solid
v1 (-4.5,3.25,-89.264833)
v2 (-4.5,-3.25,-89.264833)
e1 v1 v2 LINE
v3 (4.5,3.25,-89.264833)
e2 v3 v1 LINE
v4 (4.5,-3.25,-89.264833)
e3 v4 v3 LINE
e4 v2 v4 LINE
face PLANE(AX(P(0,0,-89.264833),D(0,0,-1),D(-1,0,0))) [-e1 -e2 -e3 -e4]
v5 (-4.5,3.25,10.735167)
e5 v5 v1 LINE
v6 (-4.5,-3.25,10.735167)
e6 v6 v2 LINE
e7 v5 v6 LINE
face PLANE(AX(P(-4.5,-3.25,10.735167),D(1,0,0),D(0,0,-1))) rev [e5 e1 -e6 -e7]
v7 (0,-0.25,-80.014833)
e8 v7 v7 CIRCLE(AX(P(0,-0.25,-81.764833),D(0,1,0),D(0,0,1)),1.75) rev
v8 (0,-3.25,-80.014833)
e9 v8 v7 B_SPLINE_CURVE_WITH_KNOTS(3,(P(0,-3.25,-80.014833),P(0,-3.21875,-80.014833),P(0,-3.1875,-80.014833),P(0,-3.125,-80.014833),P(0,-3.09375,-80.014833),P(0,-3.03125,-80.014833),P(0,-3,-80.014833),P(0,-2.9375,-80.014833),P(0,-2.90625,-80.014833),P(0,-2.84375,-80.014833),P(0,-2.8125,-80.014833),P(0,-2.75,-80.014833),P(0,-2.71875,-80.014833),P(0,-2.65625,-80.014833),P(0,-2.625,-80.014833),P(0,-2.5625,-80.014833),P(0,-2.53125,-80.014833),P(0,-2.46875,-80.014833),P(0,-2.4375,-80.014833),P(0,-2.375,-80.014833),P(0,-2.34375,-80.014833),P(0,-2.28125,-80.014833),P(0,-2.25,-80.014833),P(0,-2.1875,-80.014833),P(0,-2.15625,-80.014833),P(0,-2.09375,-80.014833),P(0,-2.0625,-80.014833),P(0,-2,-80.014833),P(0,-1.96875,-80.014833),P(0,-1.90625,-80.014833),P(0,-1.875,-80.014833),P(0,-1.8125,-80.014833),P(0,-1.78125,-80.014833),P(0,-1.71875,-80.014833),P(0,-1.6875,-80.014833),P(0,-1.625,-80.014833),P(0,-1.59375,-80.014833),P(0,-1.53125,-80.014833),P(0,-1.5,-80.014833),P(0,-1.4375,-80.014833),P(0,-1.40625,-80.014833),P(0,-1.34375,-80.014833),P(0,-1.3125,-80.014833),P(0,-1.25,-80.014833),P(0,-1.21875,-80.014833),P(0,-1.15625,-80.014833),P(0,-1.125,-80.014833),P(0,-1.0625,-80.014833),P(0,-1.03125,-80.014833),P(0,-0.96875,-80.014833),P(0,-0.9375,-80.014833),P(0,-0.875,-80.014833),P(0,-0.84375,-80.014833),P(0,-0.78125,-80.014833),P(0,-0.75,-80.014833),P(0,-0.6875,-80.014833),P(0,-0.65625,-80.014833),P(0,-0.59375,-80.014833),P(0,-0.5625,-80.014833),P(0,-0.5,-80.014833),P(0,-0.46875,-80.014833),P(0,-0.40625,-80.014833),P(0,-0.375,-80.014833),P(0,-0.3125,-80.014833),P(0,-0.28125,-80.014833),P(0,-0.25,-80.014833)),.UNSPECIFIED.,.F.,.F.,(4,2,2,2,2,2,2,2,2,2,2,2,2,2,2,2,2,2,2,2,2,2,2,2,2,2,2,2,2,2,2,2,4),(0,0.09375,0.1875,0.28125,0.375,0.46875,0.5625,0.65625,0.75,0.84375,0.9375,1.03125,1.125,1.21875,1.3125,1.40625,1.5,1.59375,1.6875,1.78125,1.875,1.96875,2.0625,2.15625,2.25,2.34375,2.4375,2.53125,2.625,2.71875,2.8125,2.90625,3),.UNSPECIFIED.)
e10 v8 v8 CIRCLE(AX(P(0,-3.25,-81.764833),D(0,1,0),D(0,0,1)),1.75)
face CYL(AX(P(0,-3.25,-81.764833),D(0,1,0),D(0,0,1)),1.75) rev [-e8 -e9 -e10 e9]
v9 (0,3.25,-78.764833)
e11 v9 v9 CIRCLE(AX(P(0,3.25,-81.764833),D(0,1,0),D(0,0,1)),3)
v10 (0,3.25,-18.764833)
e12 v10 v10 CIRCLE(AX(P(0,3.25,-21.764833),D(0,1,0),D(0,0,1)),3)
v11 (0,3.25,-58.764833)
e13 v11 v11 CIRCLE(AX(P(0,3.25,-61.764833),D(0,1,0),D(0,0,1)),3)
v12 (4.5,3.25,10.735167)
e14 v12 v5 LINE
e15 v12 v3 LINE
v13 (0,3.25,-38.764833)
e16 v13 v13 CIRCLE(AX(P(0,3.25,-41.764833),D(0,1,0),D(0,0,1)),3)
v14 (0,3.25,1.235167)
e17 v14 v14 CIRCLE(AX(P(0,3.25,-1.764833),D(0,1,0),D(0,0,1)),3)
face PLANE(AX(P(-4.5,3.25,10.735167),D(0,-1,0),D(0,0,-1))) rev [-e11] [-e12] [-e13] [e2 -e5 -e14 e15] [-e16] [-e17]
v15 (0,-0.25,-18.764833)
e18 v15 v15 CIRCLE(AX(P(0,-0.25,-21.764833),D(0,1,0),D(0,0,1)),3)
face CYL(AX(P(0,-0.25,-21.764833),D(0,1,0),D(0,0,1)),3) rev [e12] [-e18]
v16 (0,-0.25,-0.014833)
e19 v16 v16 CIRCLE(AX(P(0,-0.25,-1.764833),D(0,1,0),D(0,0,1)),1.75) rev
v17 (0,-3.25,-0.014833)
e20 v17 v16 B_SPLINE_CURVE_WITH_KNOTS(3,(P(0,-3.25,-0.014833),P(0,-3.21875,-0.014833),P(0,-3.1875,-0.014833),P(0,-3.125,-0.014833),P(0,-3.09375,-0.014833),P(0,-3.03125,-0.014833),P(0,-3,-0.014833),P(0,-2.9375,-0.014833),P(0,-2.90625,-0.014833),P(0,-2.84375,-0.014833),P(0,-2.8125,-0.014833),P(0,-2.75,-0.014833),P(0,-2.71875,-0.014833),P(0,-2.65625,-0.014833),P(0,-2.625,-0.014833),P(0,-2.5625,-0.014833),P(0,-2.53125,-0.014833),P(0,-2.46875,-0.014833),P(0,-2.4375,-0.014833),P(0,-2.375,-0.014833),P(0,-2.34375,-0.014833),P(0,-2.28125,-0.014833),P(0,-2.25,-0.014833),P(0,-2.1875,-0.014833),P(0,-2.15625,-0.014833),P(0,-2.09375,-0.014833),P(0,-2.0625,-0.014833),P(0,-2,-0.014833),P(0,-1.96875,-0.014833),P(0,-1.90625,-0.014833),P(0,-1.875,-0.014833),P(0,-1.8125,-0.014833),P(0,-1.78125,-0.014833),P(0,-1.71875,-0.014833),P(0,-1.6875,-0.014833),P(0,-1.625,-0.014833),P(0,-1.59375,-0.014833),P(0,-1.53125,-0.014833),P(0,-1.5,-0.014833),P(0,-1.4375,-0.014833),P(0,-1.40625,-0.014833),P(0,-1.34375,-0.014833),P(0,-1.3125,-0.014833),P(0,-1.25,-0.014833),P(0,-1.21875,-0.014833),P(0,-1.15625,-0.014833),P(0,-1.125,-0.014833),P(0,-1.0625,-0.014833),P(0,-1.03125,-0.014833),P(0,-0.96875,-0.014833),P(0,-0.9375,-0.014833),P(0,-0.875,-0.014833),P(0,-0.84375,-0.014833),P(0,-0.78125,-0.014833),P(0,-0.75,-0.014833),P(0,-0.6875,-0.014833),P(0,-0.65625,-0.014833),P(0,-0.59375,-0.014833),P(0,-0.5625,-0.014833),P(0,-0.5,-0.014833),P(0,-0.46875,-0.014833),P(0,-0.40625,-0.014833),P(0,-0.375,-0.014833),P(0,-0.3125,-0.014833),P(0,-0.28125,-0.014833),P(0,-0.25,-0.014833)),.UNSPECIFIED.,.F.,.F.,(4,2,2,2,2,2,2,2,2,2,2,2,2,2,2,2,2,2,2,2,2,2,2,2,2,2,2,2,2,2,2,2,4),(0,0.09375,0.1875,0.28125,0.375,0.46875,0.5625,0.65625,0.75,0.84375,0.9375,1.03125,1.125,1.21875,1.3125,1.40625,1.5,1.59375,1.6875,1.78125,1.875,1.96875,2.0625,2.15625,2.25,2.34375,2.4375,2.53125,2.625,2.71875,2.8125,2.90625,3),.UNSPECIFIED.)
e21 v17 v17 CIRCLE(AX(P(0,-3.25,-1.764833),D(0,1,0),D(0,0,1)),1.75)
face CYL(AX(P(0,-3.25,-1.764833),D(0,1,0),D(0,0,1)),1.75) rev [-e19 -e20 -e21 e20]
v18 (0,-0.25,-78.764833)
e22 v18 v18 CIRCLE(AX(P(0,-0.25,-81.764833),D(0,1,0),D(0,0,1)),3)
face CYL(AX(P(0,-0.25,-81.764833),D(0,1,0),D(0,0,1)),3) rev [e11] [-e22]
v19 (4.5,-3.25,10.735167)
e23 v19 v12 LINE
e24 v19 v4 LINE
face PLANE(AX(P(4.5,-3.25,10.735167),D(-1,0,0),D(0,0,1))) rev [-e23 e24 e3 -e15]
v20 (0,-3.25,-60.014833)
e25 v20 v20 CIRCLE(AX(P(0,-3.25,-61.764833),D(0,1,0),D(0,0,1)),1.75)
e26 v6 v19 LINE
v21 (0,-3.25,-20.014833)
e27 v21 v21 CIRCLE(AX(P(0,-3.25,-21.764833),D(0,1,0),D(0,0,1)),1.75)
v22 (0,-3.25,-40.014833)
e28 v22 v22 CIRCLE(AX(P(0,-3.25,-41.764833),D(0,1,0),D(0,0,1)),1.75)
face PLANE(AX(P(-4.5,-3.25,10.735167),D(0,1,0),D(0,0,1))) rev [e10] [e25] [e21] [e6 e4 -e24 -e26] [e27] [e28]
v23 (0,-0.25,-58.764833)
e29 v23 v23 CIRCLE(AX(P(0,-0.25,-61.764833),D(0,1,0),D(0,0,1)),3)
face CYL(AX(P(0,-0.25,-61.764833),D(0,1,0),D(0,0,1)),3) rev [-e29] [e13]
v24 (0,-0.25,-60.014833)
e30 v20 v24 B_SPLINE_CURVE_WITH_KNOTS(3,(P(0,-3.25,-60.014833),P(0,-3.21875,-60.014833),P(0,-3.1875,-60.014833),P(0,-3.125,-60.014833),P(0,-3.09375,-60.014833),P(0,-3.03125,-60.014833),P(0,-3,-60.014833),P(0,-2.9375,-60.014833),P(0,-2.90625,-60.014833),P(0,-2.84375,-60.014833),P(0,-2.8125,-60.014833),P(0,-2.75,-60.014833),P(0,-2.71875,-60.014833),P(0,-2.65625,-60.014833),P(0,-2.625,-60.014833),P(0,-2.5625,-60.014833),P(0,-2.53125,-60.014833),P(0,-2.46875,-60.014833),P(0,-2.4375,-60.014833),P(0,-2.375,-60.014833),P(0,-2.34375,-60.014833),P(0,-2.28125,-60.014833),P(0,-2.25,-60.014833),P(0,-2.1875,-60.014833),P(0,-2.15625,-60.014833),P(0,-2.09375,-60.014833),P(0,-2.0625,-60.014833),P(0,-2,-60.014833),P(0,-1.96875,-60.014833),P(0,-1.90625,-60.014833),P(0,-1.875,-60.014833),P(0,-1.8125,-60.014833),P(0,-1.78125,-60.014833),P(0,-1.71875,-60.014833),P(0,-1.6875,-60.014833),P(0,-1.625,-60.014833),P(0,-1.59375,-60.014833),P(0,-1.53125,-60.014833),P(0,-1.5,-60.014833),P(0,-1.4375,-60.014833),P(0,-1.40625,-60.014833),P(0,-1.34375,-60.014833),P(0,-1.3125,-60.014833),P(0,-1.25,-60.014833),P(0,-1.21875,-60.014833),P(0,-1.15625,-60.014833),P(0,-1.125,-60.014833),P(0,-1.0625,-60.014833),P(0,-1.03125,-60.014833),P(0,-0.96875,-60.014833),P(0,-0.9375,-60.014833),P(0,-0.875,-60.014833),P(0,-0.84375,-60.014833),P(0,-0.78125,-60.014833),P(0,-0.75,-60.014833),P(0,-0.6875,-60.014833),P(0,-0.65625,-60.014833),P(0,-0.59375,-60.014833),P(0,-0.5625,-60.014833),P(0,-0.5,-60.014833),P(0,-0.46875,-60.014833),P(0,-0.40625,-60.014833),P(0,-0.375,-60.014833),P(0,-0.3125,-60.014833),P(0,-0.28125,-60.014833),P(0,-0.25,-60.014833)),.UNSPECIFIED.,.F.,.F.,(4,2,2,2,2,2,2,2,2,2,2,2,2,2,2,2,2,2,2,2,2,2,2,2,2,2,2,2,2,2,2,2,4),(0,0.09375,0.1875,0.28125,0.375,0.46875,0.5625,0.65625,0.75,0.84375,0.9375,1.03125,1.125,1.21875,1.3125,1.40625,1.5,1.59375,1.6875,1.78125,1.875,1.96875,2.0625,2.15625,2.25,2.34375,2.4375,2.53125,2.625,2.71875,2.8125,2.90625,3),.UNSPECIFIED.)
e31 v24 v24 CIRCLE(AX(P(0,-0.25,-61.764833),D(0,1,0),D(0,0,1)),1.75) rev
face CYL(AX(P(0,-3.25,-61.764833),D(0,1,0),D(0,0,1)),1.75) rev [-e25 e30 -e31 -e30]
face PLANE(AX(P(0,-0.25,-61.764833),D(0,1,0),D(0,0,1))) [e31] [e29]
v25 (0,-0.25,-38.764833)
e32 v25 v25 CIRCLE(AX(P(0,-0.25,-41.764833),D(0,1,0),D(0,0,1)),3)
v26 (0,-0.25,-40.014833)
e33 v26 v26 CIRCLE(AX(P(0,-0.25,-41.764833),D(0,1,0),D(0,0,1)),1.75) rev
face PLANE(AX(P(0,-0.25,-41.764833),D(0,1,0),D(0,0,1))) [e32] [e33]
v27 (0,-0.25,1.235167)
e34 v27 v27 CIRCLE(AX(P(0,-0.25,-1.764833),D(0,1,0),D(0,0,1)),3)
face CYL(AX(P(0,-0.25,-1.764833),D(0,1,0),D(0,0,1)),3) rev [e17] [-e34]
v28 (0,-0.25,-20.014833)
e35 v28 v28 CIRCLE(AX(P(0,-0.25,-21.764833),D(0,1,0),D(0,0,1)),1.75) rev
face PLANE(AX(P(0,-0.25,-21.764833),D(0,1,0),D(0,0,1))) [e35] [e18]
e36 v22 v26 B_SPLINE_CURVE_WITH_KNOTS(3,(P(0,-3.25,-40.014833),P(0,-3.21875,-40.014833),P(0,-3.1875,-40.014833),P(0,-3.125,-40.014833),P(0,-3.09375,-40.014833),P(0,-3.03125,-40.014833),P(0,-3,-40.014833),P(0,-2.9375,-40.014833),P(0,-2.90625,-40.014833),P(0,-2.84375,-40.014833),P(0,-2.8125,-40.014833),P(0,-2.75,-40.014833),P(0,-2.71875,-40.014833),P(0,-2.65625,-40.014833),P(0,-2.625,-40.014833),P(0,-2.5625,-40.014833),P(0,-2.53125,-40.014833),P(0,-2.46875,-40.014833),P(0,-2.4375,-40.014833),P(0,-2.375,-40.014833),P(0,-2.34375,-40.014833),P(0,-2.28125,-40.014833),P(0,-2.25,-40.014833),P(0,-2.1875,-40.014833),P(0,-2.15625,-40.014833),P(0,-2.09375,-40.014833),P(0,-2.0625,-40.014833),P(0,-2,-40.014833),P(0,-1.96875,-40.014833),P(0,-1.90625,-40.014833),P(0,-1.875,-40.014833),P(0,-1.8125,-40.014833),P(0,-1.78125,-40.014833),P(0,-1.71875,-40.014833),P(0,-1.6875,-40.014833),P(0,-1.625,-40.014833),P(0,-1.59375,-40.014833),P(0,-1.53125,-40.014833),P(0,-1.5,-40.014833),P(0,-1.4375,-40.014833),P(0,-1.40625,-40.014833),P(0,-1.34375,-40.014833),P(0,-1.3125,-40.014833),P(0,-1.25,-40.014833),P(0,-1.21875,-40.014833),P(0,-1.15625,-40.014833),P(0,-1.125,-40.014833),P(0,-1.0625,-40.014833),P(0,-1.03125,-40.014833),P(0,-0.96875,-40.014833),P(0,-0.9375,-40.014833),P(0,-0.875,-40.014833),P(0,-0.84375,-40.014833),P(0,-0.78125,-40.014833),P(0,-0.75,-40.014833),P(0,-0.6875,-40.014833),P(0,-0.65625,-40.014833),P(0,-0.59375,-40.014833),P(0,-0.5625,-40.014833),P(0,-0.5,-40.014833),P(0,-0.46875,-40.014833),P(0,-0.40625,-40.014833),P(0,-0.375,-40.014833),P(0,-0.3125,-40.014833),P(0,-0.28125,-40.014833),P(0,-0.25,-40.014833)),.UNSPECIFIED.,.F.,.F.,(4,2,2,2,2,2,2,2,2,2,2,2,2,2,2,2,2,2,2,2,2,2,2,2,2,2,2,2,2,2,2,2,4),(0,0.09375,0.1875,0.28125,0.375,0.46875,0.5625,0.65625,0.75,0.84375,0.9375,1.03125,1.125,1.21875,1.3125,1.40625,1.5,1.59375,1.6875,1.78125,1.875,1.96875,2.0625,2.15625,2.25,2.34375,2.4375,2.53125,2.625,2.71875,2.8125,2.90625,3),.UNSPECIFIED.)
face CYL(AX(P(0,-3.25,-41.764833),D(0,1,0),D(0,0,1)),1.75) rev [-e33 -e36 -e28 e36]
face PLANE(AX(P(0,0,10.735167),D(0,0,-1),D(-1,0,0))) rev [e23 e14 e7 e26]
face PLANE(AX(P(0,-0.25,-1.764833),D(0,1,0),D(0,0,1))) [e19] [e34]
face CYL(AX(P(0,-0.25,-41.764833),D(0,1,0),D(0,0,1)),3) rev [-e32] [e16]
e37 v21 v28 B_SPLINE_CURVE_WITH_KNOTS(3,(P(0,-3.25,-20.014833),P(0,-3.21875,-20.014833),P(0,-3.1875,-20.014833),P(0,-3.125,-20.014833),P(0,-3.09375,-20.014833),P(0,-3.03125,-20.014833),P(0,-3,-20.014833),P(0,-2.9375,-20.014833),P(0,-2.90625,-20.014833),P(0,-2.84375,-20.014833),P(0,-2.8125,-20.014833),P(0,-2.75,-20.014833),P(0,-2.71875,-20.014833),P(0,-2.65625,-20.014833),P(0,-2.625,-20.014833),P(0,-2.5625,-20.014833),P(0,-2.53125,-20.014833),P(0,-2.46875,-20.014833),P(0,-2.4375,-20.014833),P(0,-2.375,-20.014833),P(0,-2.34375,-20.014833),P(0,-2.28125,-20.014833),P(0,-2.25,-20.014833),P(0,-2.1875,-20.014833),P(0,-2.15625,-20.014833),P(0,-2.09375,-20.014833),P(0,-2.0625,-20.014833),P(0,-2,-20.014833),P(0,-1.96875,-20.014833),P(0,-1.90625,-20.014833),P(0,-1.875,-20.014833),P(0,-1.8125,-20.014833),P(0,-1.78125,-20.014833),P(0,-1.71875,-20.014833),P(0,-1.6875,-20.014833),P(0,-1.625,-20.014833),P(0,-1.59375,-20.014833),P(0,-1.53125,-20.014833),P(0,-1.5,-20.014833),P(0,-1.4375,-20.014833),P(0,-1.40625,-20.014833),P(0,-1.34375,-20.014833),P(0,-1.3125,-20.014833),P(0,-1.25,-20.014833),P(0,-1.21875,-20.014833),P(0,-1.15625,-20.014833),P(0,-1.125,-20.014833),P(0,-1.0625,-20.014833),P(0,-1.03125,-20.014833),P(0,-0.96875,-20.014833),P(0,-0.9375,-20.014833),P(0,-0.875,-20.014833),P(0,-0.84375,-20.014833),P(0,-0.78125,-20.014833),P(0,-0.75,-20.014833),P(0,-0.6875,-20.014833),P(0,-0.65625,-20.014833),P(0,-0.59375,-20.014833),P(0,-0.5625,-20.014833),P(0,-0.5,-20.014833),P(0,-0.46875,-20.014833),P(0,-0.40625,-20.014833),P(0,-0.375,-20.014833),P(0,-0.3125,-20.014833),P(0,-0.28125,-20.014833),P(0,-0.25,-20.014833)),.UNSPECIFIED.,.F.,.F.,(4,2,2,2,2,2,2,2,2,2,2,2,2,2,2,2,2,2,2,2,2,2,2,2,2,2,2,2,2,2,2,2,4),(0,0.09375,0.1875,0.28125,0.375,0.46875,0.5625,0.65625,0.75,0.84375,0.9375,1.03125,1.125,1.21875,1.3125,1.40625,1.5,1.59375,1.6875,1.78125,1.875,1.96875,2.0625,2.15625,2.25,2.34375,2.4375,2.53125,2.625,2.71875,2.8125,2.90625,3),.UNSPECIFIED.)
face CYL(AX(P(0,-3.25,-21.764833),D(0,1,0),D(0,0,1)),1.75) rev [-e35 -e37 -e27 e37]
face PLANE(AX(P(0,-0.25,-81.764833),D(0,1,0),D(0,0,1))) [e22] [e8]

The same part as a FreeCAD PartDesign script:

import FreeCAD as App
import Part
import Sketcher

V = App.Vector

doc = App.newDocument("Part")
params = doc.addObject("Spreadsheet::Sheet", "Params")
for row, (alias, value) in enumerate([
    ("sketch1_width", "9 mm"),
    ("sketch1_height", "6.5 mm"),
    ("pad1_length", "100 mm"),
    ("sketch2_diameter", "3.5 mm"),
    ("sketch3_diameter", "6 mm"),
    ("pocket2_length", "3.5 mm"),
], start=1):
    params.set(f"A{row}", alias)
    params.set(f"B{row}", "=" + value)
    params.setAlias(f"B{row}", alias)

body = doc.addObject("PartDesign::Body", "Body")

sketch1 = body.newObject("Sketcher::SketchObject", "Sketch")
sketch1.AttachmentSupport = (doc.getObject("XY_Plane"), [""])
sketch1.MapMode = "FlatFace"
sketch1.AttachmentOffset = App.Placement(V(0, 0, -89.264833), App.Rotation())
sketch1.addGeometry([
    Part.LineSegment(V(-4.5, 3.25, 0), V(-4.5, -3.25, 0)),
    Part.LineSegment(V(-4.5, -3.25, 0), V(4.5, -3.25, 0)),
    Part.LineSegment(V(4.5, -3.25, 0), V(4.5, 3.25, 0)),
    Part.LineSegment(V(4.5, 3.25, 0), V(-4.5, 3.25, 0)),
], False)
sketch1.addConstraint([
    Sketcher.Constraint("Coincident", 0, 2, 1, 1),
    Sketcher.Constraint("Coincident", 1, 2, 2, 1),
    Sketcher.Constraint("Coincident", 2, 2, 3, 1),
    Sketcher.Constraint("Coincident", 3, 2, 0, 1),
    Sketcher.Constraint("Vertical", 0),
    Sketcher.Constraint("Horizontal", 1),
    Sketcher.Constraint("Vertical", 2),
    Sketcher.Constraint("Horizontal", 3),
    Sketcher.Constraint("Symmetric", 0, 2, 2, 2, -1, 1),
    Sketcher.Constraint("DistanceX", 1, 1, 1, 2, 9.0),
    Sketcher.Constraint("DistanceY", 0, 2, 0, 1, 6.5),
])
sketch1.setExpression("Constraints[9]", "Params.sketch1_width")
sketch1.setExpression("Constraints[10]", "Params.sketch1_height")
pad1 = body.newObject("PartDesign::Pad", "Pad")
pad1.Profile = sketch1
pad1.setExpression("Length", "Params.pad1_length")

sketch2 = body.newObject("Sketcher::SketchObject", "Sketch001")
sketch2.AttachmentSupport = (doc.getObject("XZ_Plane"), [""])
sketch2.MapMode = "FlatFace"
sketch2.AttachmentOffset = App.Placement(V(0, 0, -3.25), App.Rotation())
sketch2.addGeometry([
    Part.Circle(V(0, -81.764833, 0), V(0, 0, 1), 1.75),
    Part.Circle(V(0, -61.764833, 0), V(0, 0, 1), 1.75),
    Part.Circle(V(0, -41.764833, 0), V(0, 0, 1), 1.75),
    Part.Circle(V(0, -21.764833, 0), V(0, 0, 1), 1.75),
    Part.Circle(V(0, -1.764833, 0), V(0, 0, 1), 1.75),
    Part.Circle(V(0, 18.235167, 0), V(0, 0, 1), 1.75),
    Part.Circle(V(0, 38.235167, 0), V(0, 0, 1), 1.75),
    Part.Circle(V(0, 58.235167, 0), V(0, 0, 1), 1.75),
    Part.Circle(V(0, 78.235167, 0), V(0, 0, 1), 1.75),
    Part.Circle(V(0, 98.235167, 0), V(0, 0, 1), 1.75),
    Part.Circle(V(0, 118.235167, 0), V(0, 0, 1), 1.75),
    Part.Circle(V(0, 138.235167, 0), V(0, 0, 1), 1.75),
    Part.Circle(V(0, 158.235167, 0), V(0, 0, 1), 1.75),
    Part.Circle(V(0, 178.235167, 0), V(0, 0, 1), 1.75),
    Part.Circle(V(0, 198.235167, 0), V(0, 0, 1), 1.75),
    Part.Circle(V(0, 218.235167, 0), V(0, 0, 1), 1.75),
    Part.Circle(V(0, 238.235167, 0), V(0, 0, 1), 1.75),
    Part.Circle(V(0, 258.235167, 0), V(0, 0, 1), 1.75),
    Part.Circle(V(0, 278.235167, 0), V(0, 0, 1), 1.75),
    Part.Circle(V(0, 298.235167, 0), V(0, 0, 1), 1.75),
    Part.Circle(V(0, 318.235167, 0), V(0, 0, 1), 1.75),
    Part.Circle(V(0, 338.235167, 0), V(0, 0, 1), 1.75),
    Part.Circle(V(0, 358.235167, 0), V(0, 0, 1), 1.75),
    Part.Circle(V(0, 378.235167, 0), V(0, 0, 1), 1.75),
    Part.Circle(V(0, 398.235167, 0), V(0, 0, 1), 1.75),
    Part.Circle(V(0, 418.235167, 0), V(0, 0, 1), 1.75),
    Part.Circle(V(0, 438.235167, 0), V(0, 0, 1), 1.75),
    Part.Circle(V(0, 458.235167, 0), V(0, 0, 1), 1.75),
    Part.Circle(V(0, 478.235167, 0), V(0, 0, 1), 1.75),
    Part.Circle(V(0, 498.235167, 0), V(0, 0, 1), 1.75),
    Part.Circle(V(0, 518.235167, 0), V(0, 0, 1), 1.75),
    Part.Circle(V(0, 538.235167, 0), V(0, 0, 1), 1.75),
    Part.Circle(V(0, 558.235167, 0), V(0, 0, 1), 1.75),
    Part.Circle(V(0, 578.235167, 0), V(0, 0, 1), 1.75),
    Part.Circle(V(0, 598.235167, 0), V(0, 0, 1), 1.75),
    Part.Circle(V(0, 618.235167, 0), V(0, 0, 1), 1.75),
    Part.Circle(V(0, 638.235167, 0), V(0, 0, 1), 1.75),
    Part.Circle(V(0, 658.235167, 0), V(0, 0, 1), 1.75),
    Part.Circle(V(0, 678.235167, 0), V(0, 0, 1), 1.75),
    Part.Circle(V(0, 698.235167, 0), V(0, 0, 1), 1.75),
    Part.Circle(V(0, 718.235167, 0), V(0, 0, 1), 1.75),
    Part.Circle(V(0, 738.235167, 0), V(0, 0, 1), 1.75),
    Part.Circle(V(0, 758.235167, 0), V(0, 0, 1), 1.75),
    Part.Circle(V(0, 778.235167, 0), V(0, 0, 1), 1.75),
    Part.Circle(V(0, 798.235167, 0), V(0, 0, 1), 1.75),
    Part.Circle(V(0, 818.235167, 0), V(0, 0, 1), 1.75),
    Part.Circle(V(0, 838.235167, 0), V(0, 0, 1), 1.75),
    Part.Circle(V(0, 858.235167, 0), V(0, 0, 1), 1.75),
    Part.Circle(V(0, 878.235167, 0), V(0, 0, 1), 1.75),
    Part.Circle(V(0, 898.235167, 0), V(0, 0, 1), 1.75),
    Part.Circle(V(0, 918.235167, 0), V(0, 0, 1), 1.75),
    Part.Circle(V(0, 938.235167, 0), V(0, 0, 1), 1.75),
    Part.Circle(V(0, 958.235167, 0), V(0, 0, 1), 1.75),
    Part.Circle(V(0, 978.235167, 0), V(0, 0, 1), 1.75),
    Part.Circle(V(0, 998.235167, 0), V(0, 0, 1), 1.75),
    Part.Circle(V(0, 1018.235167, 0), V(0, 0, 1), 1.75),
    Part.Circle(V(0, 1038.235167, 0), V(0, 0, 1), 1.75),
    Part.Circle(V(0, 1058.235167, 0), V(0, 0, 1), 1.75),
    Part.Circle(V(0, 1078.235167, 0), V(0, 0, 1), 1.75),
    Part.Circle(V(0, 1098.235167, 0), V(0, 0, 1), 1.75),
], False)
sketch2.addConstraint([
    Sketcher.Constraint("Equal", 0, 1),
    Sketcher.Constraint("Equal", 1, 2),
    Sketcher.Constraint("Equal", 2, 3),
    Sketcher.Constraint("Equal", 3, 4),
    Sketcher.Constraint("Equal", 4, 5),
    Sketcher.Constraint("Equal", 5, 6),
    Sketcher.Constraint("Equal", 6, 7),
    Sketcher.Constraint("Equal", 7, 8),
    Sketcher.Constraint("Equal", 8, 9),
    Sketcher.Constraint("Equal", 9, 10),
    Sketcher.Constraint("Equal", 10, 11),
    Sketcher.Constraint("Equal", 11, 12),
    Sketcher.Constraint("Equal", 12, 13),
    Sketcher.Constraint("Equal", 13, 14),
    Sketcher.Constraint("Equal", 14, 15),
    Sketcher.Constraint("Equal", 15, 16),
    Sketcher.Constraint("Equal", 16, 17),
    Sketcher.Constraint("Equal", 17, 18),
    Sketcher.Constraint("Equal", 18, 19),
    Sketcher.Constraint("Equal", 19, 20),
    Sketcher.Constraint("Equal", 20, 21),
    Sketcher.Constraint("Equal", 21, 22),
    Sketcher.Constraint("Equal", 22, 23),
    Sketcher.Constraint("Equal", 23, 24),
    Sketcher.Constraint("Equal", 24, 25),
    Sketcher.Constraint("Equal", 25, 26),
    Sketcher.Constraint("Equal", 26, 27),
    Sketcher.Constraint("Equal", 27, 28),
    Sketcher.Constraint("Equal", 28, 29),
    Sketcher.Constraint("Equal", 29, 30),
    Sketcher.Constraint("Equal", 30, 31),
    Sketcher.Constraint("Equal", 31, 32),
    Sketcher.Constraint("Equal", 32, 33),
    Sketcher.Constraint("Equal", 33, 34),
    Sketcher.Constraint("Equal", 34, 35),
    Sketcher.Constraint("Equal", 35, 36),
    Sketcher.Constraint("Equal", 36, 37),
    Sketcher.Constraint("Equal", 37, 38),
    Sketcher.Constraint("Equal", 38, 39),
    Sketcher.Constraint("Equal", 39, 40),
    Sketcher.Constraint("Equal", 40, 41),
    Sketcher.Constraint("Equal", 41, 42),
    Sketcher.Constraint("Equal", 42, 43),
    Sketcher.Constraint("Equal", 43, 44),
    Sketcher.Constraint("Equal", 44, 45),
    Sketcher.Constraint("Equal", 45, 46),
    Sketcher.Constraint("Equal", 46, 47),
    Sketcher.Constraint("Equal", 47, 48),
    Sketcher.Constraint("Equal", 48, 49),
    Sketcher.Constraint("Equal", 49, 50),
    Sketcher.Constraint("Equal", 50, 51),
    Sketcher.Constraint("Equal", 51, 52),
    Sketcher.Constraint("Equal", 52, 53),
    Sketcher.Constraint("Equal", 53, 54),
    Sketcher.Constraint("Equal", 54, 55),
    Sketcher.Constraint("Equal", 55, 56),
    Sketcher.Constraint("Equal", 56, 57),
    Sketcher.Constraint("Equal", 57, 58),
    Sketcher.Constraint("Equal", 58, 59),
    Sketcher.Constraint("PointOnObject", 0, 3, -2),
    Sketcher.Constraint("PointOnObject", 1, 3, -2),
    Sketcher.Constraint("PointOnObject", 2, 3, -2),
    Sketcher.Constraint("PointOnObject", 3, 3, -2),
    Sketcher.Constraint("PointOnObject", 4, 3, -2),
    Sketcher.Constraint("PointOnObject", 5, 3, -2),
    Sketcher.Constraint("PointOnObject", 6, 3, -2),
    Sketcher.Constraint("PointOnObject", 7, 3, -2),
    Sketcher.Constraint("PointOnObject", 8, 3, -2),
    Sketcher.Constraint("PointOnObject", 9, 3, -2),
    Sketcher.Constraint("PointOnObject", 10, 3, -2),
    Sketcher.Constraint("PointOnObject", 11, 3, -2),
    Sketcher.Constraint("PointOnObject", 12, 3, -2),
    Sketcher.Constraint("PointOnObject", 13, 3, -2),
    Sketcher.Constraint("PointOnObject", 14, 3, -2),
    Sketcher.Constraint("PointOnObject", 15, 3, -2),
    Sketcher.Constraint("PointOnObject", 16, 3, -2),
    Sketcher.Constraint("PointOnObject", 17, 3, -2),
    Sketcher.Constraint("PointOnObject", 18, 3, -2),
    Sketcher.Constraint("PointOnObject", 19, 3, -2),
    Sketcher.Constraint("PointOnObject", 20, 3, -2),
    Sketcher.Constraint("PointOnObject", 21, 3, -2),
    Sketcher.Constraint("PointOnObject", 22, 3, -2),
    Sketcher.Constraint("PointOnObject", 23, 3, -2),
    Sketcher.Constraint("PointOnObject", 24, 3, -2),
    Sketcher.Constraint("PointOnObject", 25, 3, -2),
    Sketcher.Constraint("PointOnObject", 26, 3, -2),
    Sketcher.Constraint("PointOnObject", 27, 3, -2),
    Sketcher.Constraint("PointOnObject", 28, 3, -2),
    Sketcher.Constraint("PointOnObject", 29, 3, -2),
    Sketcher.Constraint("PointOnObject", 30, 3, -2),
    Sketcher.Constraint("PointOnObject", 31, 3, -2),
    Sketcher.Constraint("PointOnObject", 32, 3, -2),
    Sketcher.Constraint("PointOnObject", 33, 3, -2),
    Sketcher.Constraint("PointOnObject", 34, 3, -2),
    Sketcher.Constraint("PointOnObject", 35, 3, -2),
    Sketcher.Constraint("PointOnObject", 36, 3, -2),
    Sketcher.Constraint("PointOnObject", 37, 3, -2),
    Sketcher.Constraint("PointOnObject", 38, 3, -2),
    Sketcher.Constraint("PointOnObject", 39, 3, -2),
    Sketcher.Constraint("PointOnObject", 40, 3, -2),
    Sketcher.Constraint("PointOnObject", 41, 3, -2),
    Sketcher.Constraint("PointOnObject", 42, 3, -2),
    Sketcher.Constraint("PointOnObject", 43, 3, -2),
    Sketcher.Constraint("PointOnObject", 44, 3, -2),
    Sketcher.Constraint("PointOnObject", 45, 3, -2),
    Sketcher.Constraint("PointOnObject", 46, 3, -2),
    Sketcher.Constraint("PointOnObject", 47, 3, -2),
    Sketcher.Constraint("PointOnObject", 48, 3, -2),
    Sketcher.Constraint("PointOnObject", 49, 3, -2),
    Sketcher.Constraint("PointOnObject", 50, 3, -2),
    Sketcher.Constraint("PointOnObject", 51, 3, -2),
    Sketcher.Constraint("PointOnObject", 52, 3, -2),
    Sketcher.Constraint("PointOnObject", 53, 3, -2),
    Sketcher.Constraint("PointOnObject", 54, 3, -2),
    Sketcher.Constraint("PointOnObject", 55, 3, -2),
    Sketcher.Constraint("PointOnObject", 56, 3, -2),
    Sketcher.Constraint("PointOnObject", 57, 3, -2),
    Sketcher.Constraint("PointOnObject", 58, 3, -2),
    Sketcher.Constraint("PointOnObject", 59, 3, -2),
    Sketcher.Constraint("Diameter", 0, 3.5),
    Sketcher.Constraint("DistanceY", 0, 3, 1, 3, 20.0),
    Sketcher.Constraint("DistanceY", 1, 3, 2, 3, 20.0),
    Sketcher.Constraint("DistanceY", 2, 3, 3, 3, 20.0),
    Sketcher.Constraint("DistanceY", 3, 3, 4, 3, 20.0),
    Sketcher.Constraint("DistanceY", 4, 3, 5, 3, 20.0),
    Sketcher.Constraint("DistanceY", 5, 3, 6, 3, 20.0),
    Sketcher.Constraint("DistanceY", 6, 3, 7, 3, 20.0),
    Sketcher.Constraint("DistanceY", 7, 3, 8, 3, 20.0),
    Sketcher.Constraint("DistanceY", 8, 3, 9, 3, 20.0),
    Sketcher.Constraint("DistanceY", 9, 3, 10, 3, 20.0),
    Sketcher.Constraint("DistanceY", 10, 3, 11, 3, 20.0),
    Sketcher.Constraint("DistanceY", 11, 3, 12, 3, 20.0),
    Sketcher.Constraint("DistanceY", 12, 3, 13, 3, 20.0),
    Sketcher.Constraint("DistanceY", 13, 3, 14, 3, 20.0),
    Sketcher.Constraint("DistanceY", 14, 3, 15, 3, 20.0),
    Sketcher.Constraint("DistanceY", 15, 3, 16, 3, 20.0),
    Sketcher.Constraint("DistanceY", 16, 3, 17, 3, 20.0),
    Sketcher.Constraint("DistanceY", 17, 3, 18, 3, 20.0),
    Sketcher.Constraint("DistanceY", 18, 3, 19, 3, 20.0),
    Sketcher.Constraint("DistanceY", 19, 3, 20, 3, 20.0),
    Sketcher.Constraint("DistanceY", 20, 3, 21, 3, 20.0),
    Sketcher.Constraint("DistanceY", 21, 3, 22, 3, 20.0),
    Sketcher.Constraint("DistanceY", 22, 3, 23, 3, 20.0),
    Sketcher.Constraint("DistanceY", 23, 3, 24, 3, 20.0),
    Sketcher.Constraint("DistanceY", 24, 3, 25, 3, 20.0),
    Sketcher.Constraint("DistanceY", 25, 3, 26, 3, 20.0),
    Sketcher.Constraint("DistanceY", 26, 3, 27, 3, 20.0),
    Sketcher.Constraint("DistanceY", 27, 3, 28, 3, 20.0),
    Sketcher.Constraint("DistanceY", 28, 3, 29, 3, 20.0),
    Sketcher.Constraint("DistanceY", 29, 3, 30, 3, 20.0),
    Sketcher.Constraint("DistanceY", 30, 3, 31, 3, 20.0),
    Sketcher.Constraint("DistanceY", 31, 3, 32, 3, 20.0),
    Sketcher.Constraint("DistanceY", 32, 3, 33, 3, 20.0),
    Sketcher.Constraint("DistanceY", 33, 3, 34, 3, 20.0),
    Sketcher.Constraint("DistanceY", 34, 3, 35, 3, 20.0),
    Sketcher.Constraint("DistanceY", 35, 3, 36, 3, 20.0),
    Sketcher.Constraint("DistanceY", 36, 3, 37, 3, 20.0),
    Sketcher.Constraint("DistanceY", 37, 3, 38, 3, 20.0),
    Sketcher.Constraint("DistanceY", 38, 3, 39, 3, 20.0),
    Sketcher.Constraint("DistanceY", 39, 3, 40, 3, 20.0),
    Sketcher.Constraint("DistanceY", 40, 3, 41, 3, 20.0),
    Sketcher.Constraint("DistanceY", 41, 3, 42, 3, 20.0),
    Sketcher.Constraint("DistanceY", 42, 3, 43, 3, 20.0),
    Sketcher.Constraint("DistanceY", 43, 3, 44, 3, 20.0),
    Sketcher.Constraint("DistanceY", 44, 3, 45, 3, 20.0),
    Sketcher.Constraint("DistanceY", 45, 3, 46, 3, 20.0),
    Sketcher.Constraint("DistanceY", 46, 3, 47, 3, 20.0),
    Sketcher.Constraint("DistanceY", 47, 3, 48, 3, 20.0),
    Sketcher.Constraint("DistanceY", 48, 3, 49, 3, 20.0),
    Sketcher.Constraint("DistanceY", 49, 3, 50, 3, 20.0),
    Sketcher.Constraint("DistanceY", 50, 3, 51, 3, 20.0),
    Sketcher.Constraint("DistanceY", 51, 3, 52, 3, 20.0),
    Sketcher.Constraint("DistanceY", 52, 3, 53, 3, 20.0),
    Sketcher.Constraint("DistanceY", 53, 3, 54, 3, 20.0),
    Sketcher.Constraint("DistanceY", 54, 3, 55, 3, 20.0),
    Sketcher.Constraint("DistanceY", 55, 3, 56, 3, 20.0),
    Sketcher.Constraint("DistanceY", 56, 3, 57, 3, 20.0),
    Sketcher.Constraint("DistanceY", 57, 3, 58, 3, 20.0),
    Sketcher.Constraint("DistanceY", 58, 3, 59, 3, 20.0),
    Sketcher.Constraint("DistanceY", 0, 3, -1, 1, 81.764833),
])
sketch2.setExpression("Constraints[119]", "Params.sketch2_diameter")
pocket1 = body.newObject("PartDesign::Pocket", "Pocket")
pocket1.Profile = sketch2
pocket1.Type = "ThroughAll"
pocket1.Reversed = True

sketch3 = body.newObject("Sketcher::SketchObject", "Sketch002")
sketch3.AttachmentSupport = (doc.getObject("XZ_Plane"), [""])
sketch3.MapMode = "FlatFace"
sketch3.AttachmentOffset = App.Placement(V(0, 0, -3.25), App.Rotation())
sketch3.addGeometry([
    Part.Circle(V(0, -81.764833, 0), V(0, 0, 1), 3),
    Part.Circle(V(0, -61.764833, 0), V(0, 0, 1), 3),
    Part.Circle(V(0, -41.764833, 0), V(0, 0, 1), 3),
    Part.Circle(V(0, -21.764833, 0), V(0, 0, 1), 3),
    Part.Circle(V(0, -1.764833, 0), V(0, 0, 1), 3),
    Part.Circle(V(0, 18.235167, 0), V(0, 0, 1), 3),
    Part.Circle(V(0, 38.235167, 0), V(0, 0, 1), 3),
    Part.Circle(V(0, 58.235167, 0), V(0, 0, 1), 3),
    Part.Circle(V(0, 78.235167, 0), V(0, 0, 1), 3),
    Part.Circle(V(0, 98.235167, 0), V(0, 0, 1), 3),
    Part.Circle(V(0, 118.235167, 0), V(0, 0, 1), 3),
    Part.Circle(V(0, 138.235167, 0), V(0, 0, 1), 3),
    Part.Circle(V(0, 158.235167, 0), V(0, 0, 1), 3),
    Part.Circle(V(0, 178.235167, 0), V(0, 0, 1), 3),
    Part.Circle(V(0, 198.235167, 0), V(0, 0, 1), 3),
    Part.Circle(V(0, 218.235167, 0), V(0, 0, 1), 3),
    Part.Circle(V(0, 238.235167, 0), V(0, 0, 1), 3),
    Part.Circle(V(0, 258.235167, 0), V(0, 0, 1), 3),
    Part.Circle(V(0, 278.235167, 0), V(0, 0, 1), 3),
    Part.Circle(V(0, 298.235167, 0), V(0, 0, 1), 3),
    Part.Circle(V(0, 318.235167, 0), V(0, 0, 1), 3),
    Part.Circle(V(0, 338.235167, 0), V(0, 0, 1), 3),
    Part.Circle(V(0, 358.235167, 0), V(0, 0, 1), 3),
    Part.Circle(V(0, 378.235167, 0), V(0, 0, 1), 3),
    Part.Circle(V(0, 398.235167, 0), V(0, 0, 1), 3),
    Part.Circle(V(0, 418.235167, 0), V(0, 0, 1), 3),
    Part.Circle(V(0, 438.235167, 0), V(0, 0, 1), 3),
    Part.Circle(V(0, 458.235167, 0), V(0, 0, 1), 3),
    Part.Circle(V(0, 478.235167, 0), V(0, 0, 1), 3),
    Part.Circle(V(0, 498.235167, 0), V(0, 0, 1), 3),
    Part.Circle(V(0, 518.235167, 0), V(0, 0, 1), 3),
    Part.Circle(V(0, 538.235167, 0), V(0, 0, 1), 3),
    Part.Circle(V(0, 558.235167, 0), V(0, 0, 1), 3),
    Part.Circle(V(0, 578.235167, 0), V(0, 0, 1), 3),
    Part.Circle(V(0, 598.235167, 0), V(0, 0, 1), 3),
    Part.Circle(V(0, 618.235167, 0), V(0, 0, 1), 3),
    Part.Circle(V(0, 638.235167, 0), V(0, 0, 1), 3),
    Part.Circle(V(0, 658.235167, 0), V(0, 0, 1), 3),
    Part.Circle(V(0, 678.235167, 0), V(0, 0, 1), 3),
    Part.Circle(V(0, 698.235167, 0), V(0, 0, 1), 3),
    Part.Circle(V(0, 718.235167, 0), V(0, 0, 1), 3),
    Part.Circle(V(0, 738.235167, 0), V(0, 0, 1), 3),
    Part.Circle(V(0, 758.235167, 0), V(0, 0, 1), 3),
    Part.Circle(V(0, 778.235167, 0), V(0, 0, 1), 3),
    Part.Circle(V(0, 798.235167, 0), V(0, 0, 1), 3),
    Part.Circle(V(0, 818.235167, 0), V(0, 0, 1), 3),
    Part.Circle(V(0, 838.235167, 0), V(0, 0, 1), 3),
    Part.Circle(V(0, 858.235167, 0), V(0, 0, 1), 3),
    Part.Circle(V(0, 878.235167, 0), V(0, 0, 1), 3),
    Part.Circle(V(0, 898.235167, 0), V(0, 0, 1), 3),
    Part.Circle(V(0, 918.235167, 0), V(0, 0, 1), 3),
    Part.Circle(V(0, 938.235167, 0), V(0, 0, 1), 3),
    Part.Circle(V(0, 958.235167, 0), V(0, 0, 1), 3),
    Part.Circle(V(0, 978.235167, 0), V(0, 0, 1), 3),
    Part.Circle(V(0, 998.235167, 0), V(0, 0, 1), 3),
    Part.Circle(V(0, 1018.235167, 0), V(0, 0, 1), 3),
    Part.Circle(V(0, 1038.235167, 0), V(0, 0, 1), 3),
    Part.Circle(V(0, 1058.235167, 0), V(0, 0, 1), 3),
    Part.Circle(V(0, 1078.235167, 0), V(0, 0, 1), 3),
    Part.Circle(V(0, 1098.235167, 0), V(0, 0, 1), 3),
], False)
sketch3.addConstraint([
    Sketcher.Constraint("Equal", 0, 1),
    Sketcher.Constraint("Equal", 1, 2),
    Sketcher.Constraint("Equal", 2, 3),
    Sketcher.Constraint("Equal", 3, 4),
    Sketcher.Constraint("Equal", 4, 5),
    Sketcher.Constraint("Equal", 5, 6),
    Sketcher.Constraint("Equal", 6, 7),
    Sketcher.Constraint("Equal", 7, 8),
    Sketcher.Constraint("Equal", 8, 9),
    Sketcher.Constraint("Equal", 9, 10),
    Sketcher.Constraint("Equal", 10, 11),
    Sketcher.Constraint("Equal", 11, 12),
    Sketcher.Constraint("Equal", 12, 13),
    Sketcher.Constraint("Equal", 13, 14),
    Sketcher.Constraint("Equal", 14, 15),
    Sketcher.Constraint("Equal", 15, 16),
    Sketcher.Constraint("Equal", 16, 17),
    Sketcher.Constraint("Equal", 17, 18),
    Sketcher.Constraint("Equal", 18, 19),
    Sketcher.Constraint("Equal", 19, 20),
    Sketcher.Constraint("Equal", 20, 21),
    Sketcher.Constraint("Equal", 21, 22),
    Sketcher.Constraint("Equal", 22, 23),
    Sketcher.Constraint("Equal", 23, 24),
    Sketcher.Constraint("Equal", 24, 25),
    Sketcher.Constraint("Equal", 25, 26),
    Sketcher.Constraint("Equal", 26, 27),
    Sketcher.Constraint("Equal", 27, 28),
    Sketcher.Constraint("Equal", 28, 29),
    Sketcher.Constraint("Equal", 29, 30),
    Sketcher.Constraint("Equal", 30, 31),
    Sketcher.Constraint("Equal", 31, 32),
    Sketcher.Constraint("Equal", 32, 33),
    Sketcher.Constraint("Equal", 33, 34),
    Sketcher.Constraint("Equal", 34, 35),
    Sketcher.Constraint("Equal", 35, 36),
    Sketcher.Constraint("Equal", 36, 37),
    Sketcher.Constraint("Equal", 37, 38),
    Sketcher.Constraint("Equal", 38, 39),
    Sketcher.Constraint("Equal", 39, 40),
    Sketcher.Constraint("Equal", 40, 41),
    Sketcher.Constraint("Equal", 41, 42),
    Sketcher.Constraint("Equal", 42, 43),
    Sketcher.Constraint("Equal", 43, 44),
    Sketcher.Constraint("Equal", 44, 45),
    Sketcher.Constraint("Equal", 45, 46),
    Sketcher.Constraint("Equal", 46, 47),
    Sketcher.Constraint("Equal", 47, 48),
    Sketcher.Constraint("Equal", 48, 49),
    Sketcher.Constraint("Equal", 49, 50),
    Sketcher.Constraint("Equal", 50, 51),
    Sketcher.Constraint("Equal", 51, 52),
    Sketcher.Constraint("Equal", 52, 53),
    Sketcher.Constraint("Equal", 53, 54),
    Sketcher.Constraint("Equal", 54, 55),
    Sketcher.Constraint("Equal", 55, 56),
    Sketcher.Constraint("Equal", 56, 57),
    Sketcher.Constraint("Equal", 57, 58),
    Sketcher.Constraint("Equal", 58, 59),
    Sketcher.Constraint("PointOnObject", 0, 3, -2),
    Sketcher.Constraint("PointOnObject", 1, 3, -2),
    Sketcher.Constraint("PointOnObject", 2, 3, -2),
    Sketcher.Constraint("PointOnObject", 3, 3, -2),
    Sketcher.Constraint("PointOnObject", 4, 3, -2),
    Sketcher.Constraint("PointOnObject", 5, 3, -2),
    Sketcher.Constraint("PointOnObject", 6, 3, -2),
    Sketcher.Constraint("PointOnObject", 7, 3, -2),
    Sketcher.Constraint("PointOnObject", 8, 3, -2),
    Sketcher.Constraint("PointOnObject", 9, 3, -2),
    Sketcher.Constraint("PointOnObject", 10, 3, -2),
    Sketcher.Constraint("PointOnObject", 11, 3, -2),
    Sketcher.Constraint("PointOnObject", 12, 3, -2),
    Sketcher.Constraint("PointOnObject", 13, 3, -2),
    Sketcher.Constraint("PointOnObject", 14, 3, -2),
    Sketcher.Constraint("PointOnObject", 15, 3, -2),
    Sketcher.Constraint("PointOnObject", 16, 3, -2),
    Sketcher.Constraint("PointOnObject", 17, 3, -2),
    Sketcher.Constraint("PointOnObject", 18, 3, -2),
    Sketcher.Constraint("PointOnObject", 19, 3, -2),
    Sketcher.Constraint("PointOnObject", 20, 3, -2),
    Sketcher.Constraint("PointOnObject", 21, 3, -2),
    Sketcher.Constraint("PointOnObject", 22, 3, -2),
    Sketcher.Constraint("PointOnObject", 23, 3, -2),
    Sketcher.Constraint("PointOnObject", 24, 3, -2),
    Sketcher.Constraint("PointOnObject", 25, 3, -2),
    Sketcher.Constraint("PointOnObject", 26, 3, -2),
    Sketcher.Constraint("PointOnObject", 27, 3, -2),
    Sketcher.Constraint("PointOnObject", 28, 3, -2),
    Sketcher.Constraint("PointOnObject", 29, 3, -2),
    Sketcher.Constraint("PointOnObject", 30, 3, -2),
    Sketcher.Constraint("PointOnObject", 31, 3, -2),
    Sketcher.Constraint("PointOnObject", 32, 3, -2),
    Sketcher.Constraint("PointOnObject", 33, 3, -2),
    Sketcher.Constraint("PointOnObject", 34, 3, -2),
    Sketcher.Constraint("PointOnObject", 35, 3, -2),
    Sketcher.Constraint("PointOnObject", 36, 3, -2),
    Sketcher.Constraint("PointOnObject", 37, 3, -2),
    Sketcher.Constraint("PointOnObject", 38, 3, -2),
    Sketcher.Constraint("PointOnObject", 39, 3, -2),
    Sketcher.Constraint("PointOnObject", 40, 3, -2),
    Sketcher.Constraint("PointOnObject", 41, 3, -2),
    Sketcher.Constraint("PointOnObject", 42, 3, -2),
    Sketcher.Constraint("PointOnObject", 43, 3, -2),
    Sketcher.Constraint("PointOnObject", 44, 3, -2),
    Sketcher.Constraint("PointOnObject", 45, 3, -2),
    Sketcher.Constraint("PointOnObject", 46, 3, -2),
    Sketcher.Constraint("PointOnObject", 47, 3, -2),
    Sketcher.Constraint("PointOnObject", 48, 3, -2),
    Sketcher.Constraint("PointOnObject", 49, 3, -2),
    Sketcher.Constraint("PointOnObject", 50, 3, -2),
    Sketcher.Constraint("PointOnObject", 51, 3, -2),
    Sketcher.Constraint("PointOnObject", 52, 3, -2),
    Sketcher.Constraint("PointOnObject", 53, 3, -2),
    Sketcher.Constraint("PointOnObject", 54, 3, -2),
    Sketcher.Constraint("PointOnObject", 55, 3, -2),
    Sketcher.Constraint("PointOnObject", 56, 3, -2),
    Sketcher.Constraint("PointOnObject", 57, 3, -2),
    Sketcher.Constraint("PointOnObject", 58, 3, -2),
    Sketcher.Constraint("PointOnObject", 59, 3, -2),
    Sketcher.Constraint("Diameter", 0, 6.0),
    Sketcher.Constraint("DistanceY", 0, 3, 1, 3, 20.0),
    Sketcher.Constraint("DistanceY", 1, 3, 2, 3, 20.0),
    Sketcher.Constraint("DistanceY", 2, 3, 3, 3, 20.0),
    Sketcher.Constraint("DistanceY", 3, 3, 4, 3, 20.0),
    Sketcher.Constraint("DistanceY", 4, 3, 5, 3, 20.0),
    Sketcher.Constraint("DistanceY", 5, 3, 6, 3, 20.0),
    Sketcher.Constraint("DistanceY", 6, 3, 7, 3, 20.0),
    Sketcher.Constraint("DistanceY", 7, 3, 8, 3, 20.0),
    Sketcher.Constraint("DistanceY", 8, 3, 9, 3, 20.0),
    Sketcher.Constraint("DistanceY", 9, 3, 10, 3, 20.0),
    Sketcher.Constraint("DistanceY", 10, 3, 11, 3, 20.0),
    Sketcher.Constraint("DistanceY", 11, 3, 12, 3, 20.0),
    Sketcher.Constraint("DistanceY", 12, 3, 13, 3, 20.0),
    Sketcher.Constraint("DistanceY", 13, 3, 14, 3, 20.0),
    Sketcher.Constraint("DistanceY", 14, 3, 15, 3, 20.0),
    Sketcher.Constraint("DistanceY", 15, 3, 16, 3, 20.0),
    Sketcher.Constraint("DistanceY", 16, 3, 17, 3, 20.0),
    Sketcher.Constraint("DistanceY", 17, 3, 18, 3, 20.0),
    Sketcher.Constraint("DistanceY", 18, 3, 19, 3, 20.0),
    Sketcher.Constraint("DistanceY", 19, 3, 20, 3, 20.0),
    Sketcher.Constraint("DistanceY", 20, 3, 21, 3, 20.0),
    Sketcher.Constraint("DistanceY", 21, 3, 22, 3, 20.0),
    Sketcher.Constraint("DistanceY", 22, 3, 23, 3, 20.0),
    Sketcher.Constraint("DistanceY", 23, 3, 24, 3, 20.0),
    Sketcher.Constraint("DistanceY", 24, 3, 25, 3, 20.0),
    Sketcher.Constraint("DistanceY", 25, 3, 26, 3, 20.0),
    Sketcher.Constraint("DistanceY", 26, 3, 27, 3, 20.0),
    Sketcher.Constraint("DistanceY", 27, 3, 28, 3, 20.0),
    Sketcher.Constraint("DistanceY", 28, 3, 29, 3, 20.0),
    Sketcher.Constraint("DistanceY", 29, 3, 30, 3, 20.0),
    Sketcher.Constraint("DistanceY", 30, 3, 31, 3, 20.0),
    Sketcher.Constraint("DistanceY", 31, 3, 32, 3, 20.0),
    Sketcher.Constraint("DistanceY", 32, 3, 33, 3, 20.0),
    Sketcher.Constraint("DistanceY", 33, 3, 34, 3, 20.0),
    Sketcher.Constraint("DistanceY", 34, 3, 35, 3, 20.0),
    Sketcher.Constraint("DistanceY", 35, 3, 36, 3, 20.0),
    Sketcher.Constraint("DistanceY", 36, 3, 37, 3, 20.0),
    Sketcher.Constraint("DistanceY", 37, 3, 38, 3, 20.0),
    Sketcher.Constraint("DistanceY", 38, 3, 39, 3, 20.0),
    Sketcher.Constraint("DistanceY", 39, 3, 40, 3, 20.0),
    Sketcher.Constraint("DistanceY", 40, 3, 41, 3, 20.0),
    Sketcher.Constraint("DistanceY", 41, 3, 42, 3, 20.0),
    Sketcher.Constraint("DistanceY", 42, 3, 43, 3, 20.0),
    Sketcher.Constraint("DistanceY", 43, 3, 44, 3, 20.0),
    Sketcher.Constraint("DistanceY", 44, 3, 45, 3, 20.0),
    Sketcher.Constraint("DistanceY", 45, 3, 46, 3, 20.0),
    Sketcher.Constraint("DistanceY", 46, 3, 47, 3, 20.0),
    Sketcher.Constraint("DistanceY", 47, 3, 48, 3, 20.0),
    Sketcher.Constraint("DistanceY", 48, 3, 49, 3, 20.0),
    Sketcher.Constraint("DistanceY", 49, 3, 50, 3, 20.0),
    Sketcher.Constraint("DistanceY", 50, 3, 51, 3, 20.0),
    Sketcher.Constraint("DistanceY", 51, 3, 52, 3, 20.0),
    Sketcher.Constraint("DistanceY", 52, 3, 53, 3, 20.0),
    Sketcher.Constraint("DistanceY", 53, 3, 54, 3, 20.0),
    Sketcher.Constraint("DistanceY", 54, 3, 55, 3, 20.0),
    Sketcher.Constraint("DistanceY", 55, 3, 56, 3, 20.0),
    Sketcher.Constraint("DistanceY", 56, 3, 57, 3, 20.0),
    Sketcher.Constraint("DistanceY", 57, 3, 58, 3, 20.0),
    Sketcher.Constraint("DistanceY", 58, 3, 59, 3, 20.0),
    Sketcher.Constraint("DistanceY", 0, 3, -1, 1, 81.764833),
])
sketch3.setExpression("Constraints[119]", "Params.sketch3_diameter")
pocket2 = body.newObject("PartDesign::Pocket", "Pocket001")
pocket2.Profile = sketch3
pocket2.setExpression("Length", "Params.pocket2_length")
pocket2.Reversed = True

doc.recompute()
